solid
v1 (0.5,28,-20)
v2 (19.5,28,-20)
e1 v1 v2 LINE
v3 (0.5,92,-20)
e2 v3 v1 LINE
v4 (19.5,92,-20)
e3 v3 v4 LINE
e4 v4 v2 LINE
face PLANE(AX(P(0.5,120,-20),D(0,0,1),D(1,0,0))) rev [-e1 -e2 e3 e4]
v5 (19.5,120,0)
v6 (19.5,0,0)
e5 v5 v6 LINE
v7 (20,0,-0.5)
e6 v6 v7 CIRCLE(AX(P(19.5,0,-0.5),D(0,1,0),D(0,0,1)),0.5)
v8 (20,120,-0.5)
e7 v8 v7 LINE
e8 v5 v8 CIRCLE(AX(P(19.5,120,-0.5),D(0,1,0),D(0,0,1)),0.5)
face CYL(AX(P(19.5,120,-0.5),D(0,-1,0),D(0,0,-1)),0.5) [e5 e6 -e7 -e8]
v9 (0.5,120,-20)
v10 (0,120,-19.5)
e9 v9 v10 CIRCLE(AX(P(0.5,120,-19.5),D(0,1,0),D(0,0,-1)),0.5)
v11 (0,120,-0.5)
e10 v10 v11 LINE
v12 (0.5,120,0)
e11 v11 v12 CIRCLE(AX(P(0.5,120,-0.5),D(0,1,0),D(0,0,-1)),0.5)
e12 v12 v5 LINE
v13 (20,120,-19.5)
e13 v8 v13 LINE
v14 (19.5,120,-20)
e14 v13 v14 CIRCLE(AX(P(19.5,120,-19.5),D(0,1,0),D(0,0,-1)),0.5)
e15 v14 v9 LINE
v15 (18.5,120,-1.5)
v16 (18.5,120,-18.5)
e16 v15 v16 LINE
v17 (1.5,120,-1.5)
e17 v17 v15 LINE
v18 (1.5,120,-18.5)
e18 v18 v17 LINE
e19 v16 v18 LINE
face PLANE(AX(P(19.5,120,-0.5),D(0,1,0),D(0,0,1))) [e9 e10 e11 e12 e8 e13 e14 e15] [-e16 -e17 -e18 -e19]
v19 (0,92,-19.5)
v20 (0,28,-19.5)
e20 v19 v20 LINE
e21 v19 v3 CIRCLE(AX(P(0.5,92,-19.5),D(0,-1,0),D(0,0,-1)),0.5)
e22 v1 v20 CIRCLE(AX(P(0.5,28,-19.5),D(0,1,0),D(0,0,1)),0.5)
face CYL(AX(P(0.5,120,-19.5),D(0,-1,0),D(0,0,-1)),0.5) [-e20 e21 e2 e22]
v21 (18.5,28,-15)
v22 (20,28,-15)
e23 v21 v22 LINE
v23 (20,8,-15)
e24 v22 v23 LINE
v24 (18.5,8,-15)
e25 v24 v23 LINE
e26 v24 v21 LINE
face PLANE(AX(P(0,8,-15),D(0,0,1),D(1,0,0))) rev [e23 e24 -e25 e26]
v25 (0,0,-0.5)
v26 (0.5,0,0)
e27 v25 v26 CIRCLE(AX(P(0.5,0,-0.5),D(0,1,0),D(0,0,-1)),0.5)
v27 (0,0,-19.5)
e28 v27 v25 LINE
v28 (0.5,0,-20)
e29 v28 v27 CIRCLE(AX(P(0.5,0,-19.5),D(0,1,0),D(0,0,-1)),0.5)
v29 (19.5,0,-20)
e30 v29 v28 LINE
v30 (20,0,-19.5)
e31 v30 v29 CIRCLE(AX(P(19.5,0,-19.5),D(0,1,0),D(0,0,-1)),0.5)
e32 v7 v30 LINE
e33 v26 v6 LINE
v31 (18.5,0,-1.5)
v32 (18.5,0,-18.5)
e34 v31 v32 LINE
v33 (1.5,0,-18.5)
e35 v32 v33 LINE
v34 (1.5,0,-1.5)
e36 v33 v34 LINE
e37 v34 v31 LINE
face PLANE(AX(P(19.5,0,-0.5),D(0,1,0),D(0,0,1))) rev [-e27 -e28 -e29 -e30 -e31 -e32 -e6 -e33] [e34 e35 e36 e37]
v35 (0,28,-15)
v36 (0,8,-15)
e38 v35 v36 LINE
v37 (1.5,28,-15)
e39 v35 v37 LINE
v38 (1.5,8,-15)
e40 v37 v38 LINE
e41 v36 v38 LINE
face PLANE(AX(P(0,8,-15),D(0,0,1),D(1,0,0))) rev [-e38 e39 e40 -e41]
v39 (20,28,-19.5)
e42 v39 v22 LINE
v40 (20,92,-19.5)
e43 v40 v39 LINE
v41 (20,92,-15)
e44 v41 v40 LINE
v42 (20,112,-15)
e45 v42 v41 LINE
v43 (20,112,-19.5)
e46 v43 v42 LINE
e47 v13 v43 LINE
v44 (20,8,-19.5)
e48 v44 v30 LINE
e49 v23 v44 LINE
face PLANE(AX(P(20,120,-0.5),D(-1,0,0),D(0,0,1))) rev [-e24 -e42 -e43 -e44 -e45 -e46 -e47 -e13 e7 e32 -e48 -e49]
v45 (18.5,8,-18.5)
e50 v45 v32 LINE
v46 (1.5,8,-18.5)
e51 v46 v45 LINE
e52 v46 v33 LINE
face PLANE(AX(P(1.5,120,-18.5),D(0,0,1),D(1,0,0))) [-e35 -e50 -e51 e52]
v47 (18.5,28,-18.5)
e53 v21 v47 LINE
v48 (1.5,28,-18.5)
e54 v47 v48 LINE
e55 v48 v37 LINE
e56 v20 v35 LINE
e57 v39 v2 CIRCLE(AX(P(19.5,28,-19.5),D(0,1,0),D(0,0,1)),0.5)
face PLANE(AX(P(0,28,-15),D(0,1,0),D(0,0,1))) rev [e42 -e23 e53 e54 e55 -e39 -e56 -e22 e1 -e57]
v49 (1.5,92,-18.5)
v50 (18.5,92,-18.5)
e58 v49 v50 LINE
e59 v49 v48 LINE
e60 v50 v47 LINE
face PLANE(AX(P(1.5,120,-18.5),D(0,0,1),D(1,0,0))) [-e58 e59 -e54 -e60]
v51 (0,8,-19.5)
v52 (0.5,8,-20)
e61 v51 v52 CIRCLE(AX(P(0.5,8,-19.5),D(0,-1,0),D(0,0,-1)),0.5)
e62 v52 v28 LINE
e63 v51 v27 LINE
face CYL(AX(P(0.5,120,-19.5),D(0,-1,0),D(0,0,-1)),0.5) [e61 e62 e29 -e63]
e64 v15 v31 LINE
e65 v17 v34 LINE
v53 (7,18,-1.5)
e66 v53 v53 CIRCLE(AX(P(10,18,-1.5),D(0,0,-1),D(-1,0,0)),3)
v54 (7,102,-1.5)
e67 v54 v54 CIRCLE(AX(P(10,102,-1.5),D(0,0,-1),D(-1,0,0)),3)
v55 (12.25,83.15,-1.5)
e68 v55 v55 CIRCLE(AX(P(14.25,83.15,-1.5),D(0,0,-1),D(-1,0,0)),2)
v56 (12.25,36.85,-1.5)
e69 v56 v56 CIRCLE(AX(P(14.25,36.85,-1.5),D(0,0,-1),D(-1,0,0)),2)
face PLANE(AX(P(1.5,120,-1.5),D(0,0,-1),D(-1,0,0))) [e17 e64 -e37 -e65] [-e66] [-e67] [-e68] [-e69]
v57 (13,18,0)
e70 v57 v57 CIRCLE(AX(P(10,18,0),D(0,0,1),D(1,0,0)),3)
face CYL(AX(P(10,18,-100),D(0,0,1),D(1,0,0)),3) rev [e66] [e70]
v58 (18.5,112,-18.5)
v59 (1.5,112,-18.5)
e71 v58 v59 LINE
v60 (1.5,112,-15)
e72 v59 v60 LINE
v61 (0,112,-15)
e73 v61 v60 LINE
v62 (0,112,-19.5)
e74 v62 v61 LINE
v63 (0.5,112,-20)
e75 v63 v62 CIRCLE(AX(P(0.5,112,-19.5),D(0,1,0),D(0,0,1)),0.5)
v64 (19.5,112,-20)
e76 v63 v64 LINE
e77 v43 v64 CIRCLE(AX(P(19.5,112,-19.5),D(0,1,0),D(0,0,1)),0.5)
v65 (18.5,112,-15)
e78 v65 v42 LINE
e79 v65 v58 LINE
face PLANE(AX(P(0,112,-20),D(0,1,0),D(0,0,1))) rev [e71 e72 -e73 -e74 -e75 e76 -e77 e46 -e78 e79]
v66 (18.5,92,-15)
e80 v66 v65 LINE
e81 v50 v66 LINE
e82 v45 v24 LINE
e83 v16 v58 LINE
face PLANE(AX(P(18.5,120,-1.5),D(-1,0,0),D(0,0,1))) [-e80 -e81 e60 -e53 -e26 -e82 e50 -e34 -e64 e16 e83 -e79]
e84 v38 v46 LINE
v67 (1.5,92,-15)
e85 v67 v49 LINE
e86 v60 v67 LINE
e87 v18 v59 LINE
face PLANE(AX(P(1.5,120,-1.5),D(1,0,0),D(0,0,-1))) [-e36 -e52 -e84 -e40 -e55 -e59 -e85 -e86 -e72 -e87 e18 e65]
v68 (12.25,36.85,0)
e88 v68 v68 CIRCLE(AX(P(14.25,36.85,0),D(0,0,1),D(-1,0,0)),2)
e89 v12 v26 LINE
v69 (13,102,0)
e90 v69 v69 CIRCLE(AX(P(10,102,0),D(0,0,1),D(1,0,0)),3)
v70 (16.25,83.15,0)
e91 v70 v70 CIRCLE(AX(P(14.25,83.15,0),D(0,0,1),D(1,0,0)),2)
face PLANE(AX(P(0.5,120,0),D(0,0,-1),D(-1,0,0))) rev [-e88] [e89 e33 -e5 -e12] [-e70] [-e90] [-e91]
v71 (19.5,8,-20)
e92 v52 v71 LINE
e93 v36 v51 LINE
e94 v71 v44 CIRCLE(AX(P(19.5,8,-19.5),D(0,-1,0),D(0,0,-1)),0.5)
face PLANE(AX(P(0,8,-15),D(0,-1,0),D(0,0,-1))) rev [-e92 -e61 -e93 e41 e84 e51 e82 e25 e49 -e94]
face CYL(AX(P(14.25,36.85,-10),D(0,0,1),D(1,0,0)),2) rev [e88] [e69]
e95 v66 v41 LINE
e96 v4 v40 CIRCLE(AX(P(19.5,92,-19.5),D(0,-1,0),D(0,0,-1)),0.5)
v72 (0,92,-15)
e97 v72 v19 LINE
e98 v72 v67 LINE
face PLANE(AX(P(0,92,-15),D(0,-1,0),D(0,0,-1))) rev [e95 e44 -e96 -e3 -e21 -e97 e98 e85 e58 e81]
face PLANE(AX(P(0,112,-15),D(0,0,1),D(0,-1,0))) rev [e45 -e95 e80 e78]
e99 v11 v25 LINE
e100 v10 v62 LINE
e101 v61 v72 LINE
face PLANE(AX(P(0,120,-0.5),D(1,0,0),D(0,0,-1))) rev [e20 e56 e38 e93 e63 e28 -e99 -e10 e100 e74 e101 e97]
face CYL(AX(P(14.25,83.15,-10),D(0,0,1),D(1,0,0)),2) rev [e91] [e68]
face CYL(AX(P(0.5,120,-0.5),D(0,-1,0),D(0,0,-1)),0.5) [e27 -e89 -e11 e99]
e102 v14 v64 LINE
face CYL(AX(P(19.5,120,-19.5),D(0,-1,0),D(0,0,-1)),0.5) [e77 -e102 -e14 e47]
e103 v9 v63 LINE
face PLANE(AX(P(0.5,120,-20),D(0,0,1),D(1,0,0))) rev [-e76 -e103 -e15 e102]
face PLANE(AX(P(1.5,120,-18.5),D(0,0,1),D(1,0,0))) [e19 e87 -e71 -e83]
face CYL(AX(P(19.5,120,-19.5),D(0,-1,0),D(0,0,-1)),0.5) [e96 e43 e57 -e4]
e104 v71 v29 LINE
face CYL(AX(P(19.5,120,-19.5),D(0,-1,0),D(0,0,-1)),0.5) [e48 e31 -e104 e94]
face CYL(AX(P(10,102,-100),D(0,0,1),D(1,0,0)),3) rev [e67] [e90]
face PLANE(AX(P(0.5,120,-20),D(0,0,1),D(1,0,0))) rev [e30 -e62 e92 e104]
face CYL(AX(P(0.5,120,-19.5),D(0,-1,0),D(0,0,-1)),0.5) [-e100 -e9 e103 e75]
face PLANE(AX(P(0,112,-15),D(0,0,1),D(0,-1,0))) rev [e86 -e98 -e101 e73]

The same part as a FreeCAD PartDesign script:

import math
import FreeCAD as App
import Part
import Sketcher
from FreeCAD import Vector
Q = App.Units.Quantity


def add_polygon(sketch, points):
    """Adds a closed chain of lines whose ends are joined by coincident constraints."""
    first, n = sketch.GeometryCount, len(points)
    for a, b in zip(points, points[1:] + points[:1]):
        sketch.addGeometry(Part.LineSegment(App.Vector(*a, 0), App.Vector(*b, 0)), False)
    for i in range(n):
        sketch.addConstraint(Sketcher.Constraint("Coincident", first + i, 2, first + (i + 1) % n, 1))

doc = App.newDocument("Part")
body = doc.addObject("PartDesign::Body", "Body")

# Sketch on XZ plane
sketch1 = body.newObject("Sketcher::SketchObject", "Sketch")
sketch1.AttachmentSupport = (doc.getObject("XZ_Plane"), [""])
sketch1.MapMode = "FlatFace"
sketch1.addGeometry(Part.LineSegment(Vector(0.5, 0, 0), Vector(19.5, 0, 0)), False)  # 0
sketch1.addGeometry(Part.ArcOfCircle(Part.Circle(Vector(19.5, -0.5, 0), Vector(0, 0, 1), 0.5), math.radians(0), math.radians(90)), False)  # 1
sketch1.addGeometry(Part.LineSegment(Vector(20, -0.5, 0), Vector(20, -19.5, 0)), False)  # 2
sketch1.addGeometry(Part.ArcOfCircle(Part.Circle(Vector(19.5, -19.5, 0), Vector(0, 0, 1), 0.5), math.radians(-90), math.radians(0)), False)  # 3
sketch1.addGeometry(Part.LineSegment(Vector(19.5, -20, 0), Vector(0.5, -20, 0)), False)  # 4
sketch1.addGeometry(Part.ArcOfCircle(Part.Circle(Vector(0.5, -19.5, 0), Vector(0, 0, 1), 0.5), math.radians(180), math.radians(270)), False)  # 5
sketch1.addGeometry(Part.LineSegment(Vector(0, -19.5, 0), Vector(0, -0.5, 0)), False)  # 6
sketch1.addGeometry(Part.ArcOfCircle(Part.Circle(Vector(0.5, -0.5, 0), Vector(0, 0, 1), 0.5), math.radians(90), math.radians(180)), False)  # 7
add_polygon(sketch1, [(18.5, -1.5), (1.5, -1.5), (1.5, -18.5), (18.5, -18.5)])  # lines 8-11
sketch1.addConstraint([
    Sketcher.Constraint("Tangent", 0, 2, 1, 2),
    Sketcher.Constraint("Tangent", 1, 1, 2, 1),
    Sketcher.Constraint("Tangent", 2, 2, 3, 2),
    Sketcher.Constraint("Tangent", 3, 1, 4, 1),
    Sketcher.Constraint("Tangent", 4, 2, 5, 2),
    Sketcher.Constraint("Tangent", 5, 1, 6, 1),
    Sketcher.Constraint("Tangent", 6, 2, 7, 2),
    Sketcher.Constraint("Tangent", 7, 1, 0, 1),
    Sketcher.Constraint("Horizontal", 0),
    Sketcher.Constraint("Vertical", 2),
    Sketcher.Constraint("Horizontal", 4),
    Sketcher.Constraint("Vertical", 6),
    Sketcher.Constraint("Horizontal", 8),
    Sketcher.Constraint("Vertical", 9),
    Sketcher.Constraint("Horizontal", 10),
    Sketcher.Constraint("Vertical", 11),
    Sketcher.Constraint("Equal", 1, 3),
    Sketcher.Constraint("Equal", 3, 5),
    Sketcher.Constraint("Equal", 5, 7),
    Sketcher.Constraint("PointOnObject", 0, 2, -1),
    Sketcher.Constraint("PointOnObject", 5, 1, -2),
    Sketcher.Constraint("Equal", 4, 2),
    Sketcher.Constraint("Equal", 10, 9),
    Sketcher.Constraint("Radius", 1, Q("0.5 mm")),
    Sketcher.Constraint("DistanceX", 0, 1, 0, 2, Q("19 mm")),
    Sketcher.Constraint("DistanceX", 8, 2, 8, 1, Q("17 mm")),
    Sketcher.Constraint("DistanceX", 7, 3, 8, 2, Q("1 mm")),
    Sketcher.Constraint("DistanceY", 8, 2, 7, 3, Q("1 mm")),
])
pad1 = body.newObject("PartDesign::Pad", "Pad")
pad1.Profile = sketch1
pad1.Length = 120
pad1.Reversed = True

# Sketch on YZ plane
sketch2 = body.newObject("Sketcher::SketchObject", "Sketch001")
sketch2.AttachmentSupport = (doc.getObject("YZ_Plane"), [""])
sketch2.MapMode = "FlatFace"
sketch2.AttachmentOffset = App.Placement(Vector(0, 0, 20), App.Rotation())
add_polygon(sketch2, [(112, -15), (92, -15), (92, -20), (112, -20)])  # lines 0-3
add_polygon(sketch2, [(28, -15), (8, -15), (8, -20), (28, -20)])  # lines 4-7
sketch2.addConstraint([
    Sketcher.Constraint("Horizontal", 0),
    Sketcher.Constraint("Vertical", 1),
    Sketcher.Constraint("Horizontal", 2),
    Sketcher.Constraint("Vertical", 3),
    Sketcher.Constraint("Horizontal", 4),
    Sketcher.Constraint("Vertical", 5),
    Sketcher.Constraint("Horizontal", 6),
    Sketcher.Constraint("Vertical", 7),
    Sketcher.Constraint("Horizontal", 3, 2, 4, 2),
    Sketcher.Constraint("Horizontal", 2, 2, 5, 2),
    Sketcher.Constraint("Equal", 2, 4),
    Sketcher.Constraint("DistanceX", 0, 2, 0, 1, Q("20 mm")),
    Sketcher.Constraint("DistanceY", 1, 2, 1, 1, Q("5 mm")),
    Sketcher.Constraint("DistanceX", -1, 1, 0, 2, Q("92 mm")),
    Sketcher.Constraint("DistanceY", 0, 2, -1, 1, Q("15 mm")),
    Sketcher.Constraint("DistanceX", -1, 1, 4, 2, Q("8 mm")),
])
pocket1 = body.newObject("PartDesign::Pocket", "Pocket")
pocket1.Profile = sketch2
pocket1.Type = "ThroughAll"

# Sketch on XY plane
sketch3 = body.newObject("Sketcher::SketchObject", "Sketch002")
sketch3.AttachmentSupport = (doc.getObject("XY_Plane"), [""])
sketch3.MapMode = "FlatFace"
sketch3.addGeometry([
    Part.Circle(Vector(10, 102, 0), Vector(0, 0, 1), 3),
    Part.Circle(Vector(10, 18, 0), Vector(0, 0, 1), 3),
], False)
sketch3.addConstraint([
    Sketcher.Constraint("Equal", 0, 1),
    Sketcher.Constraint("Vertical", 0, 3, 1, 3),
    Sketcher.Constraint("Diameter", 0, Q("6 mm")),
    Sketcher.Constraint("DistanceX", -1, 1, 0, 3, Q("10 mm")),
    Sketcher.Constraint("DistanceY", -1, 1, 0, 3, Q("102 mm")),
    Sketcher.Constraint("DistanceY", -1, 1, 1, 3, Q("18 mm")),
])
pocket2 = body.newObject("PartDesign::Pocket", "Pocket001")
pocket2.Profile = sketch3
pocket2.Length = 100

# Sketch on XY plane
sketch4 = body.newObject("Sketcher::SketchObject", "Sketch003")
sketch4.AttachmentSupport = (doc.getObject("XY_Plane"), [""])
sketch4.MapMode = "FlatFace"
sketch4.addGeometry([
    Part.Circle(Vector(14.2, 83.2, 0), Vector(0, 0, 1), 2),
    Part.Circle(Vector(14.2, 36.9, 0), Vector(0, 0, 1), 2),
], False)
sketch4.addConstraint([
    Sketcher.Constraint("Equal", 0, 1),
    Sketcher.Constraint("Vertical", 0, 3, 1, 3),
    Sketcher.Constraint("Diameter", 0, Q("4 mm")),
    Sketcher.Constraint("DistanceY", 1, 3, 0, 3, Q("46.3 mm")),
    Sketcher.Constraint("DistanceX", -1, 1, 0, 3, Q("14.25 mm")),
    Sketcher.Constraint("DistanceY", -1, 1, 0, 3, Q("83.15 mm")),
])
pocket3 = body.newObject("PartDesign::Pocket", "Pocket002")
pocket3.Profile = sketch4
pocket3.Length = 10

doc.recompute()
